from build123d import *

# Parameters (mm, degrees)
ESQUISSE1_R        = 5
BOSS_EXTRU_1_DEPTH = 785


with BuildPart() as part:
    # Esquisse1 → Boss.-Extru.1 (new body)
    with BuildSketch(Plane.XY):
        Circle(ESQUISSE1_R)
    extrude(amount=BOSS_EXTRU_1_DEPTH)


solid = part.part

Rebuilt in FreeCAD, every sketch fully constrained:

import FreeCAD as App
import Part
import Sketcher
Q = App.Units.Quantity

doc = App.newDocument("Part")
params = doc.addObject("Spreadsheet::Sheet", "Params")
for row, (alias, value) in enumerate([
    ("sketch1_diameter", "10 mm"),
    ("pad1_length", "785 mm"),
], start=1):
    params.set(f"A{row}", alias)
    params.set(f"B{row}", "=" + value)
    params.setAlias(f"B{row}", alias)

body = doc.addObject("PartDesign::Body", "Body")

# Sketch on XY plane
sketch1 = body.newObject("Sketcher::SketchObject", "Sketch")
sketch1.AttachmentSupport = (doc.getObject("XY_Plane"), [""])
sketch1.MapMode = "FlatFace"
sketch1.addGeometry(Part.Circle(App.Vector(0, 0, 0), App.Vector(0, 0, 1), 5), False)
sketch1.addConstraint([
    Sketcher.Constraint("Coincident", 0, 3, -1, 1),
    Sketcher.Constraint("Diameter", 0, Q("10 mm")),
])
sketch1.setExpression("Constraints[1]", "Params.sketch1_diameter")
pad1 = body.newObject("PartDesign::Pad", "Pad")
pad1.Profile = sketch1
pad1.setExpression("Length", "Params.pad1_length")

doc.recompute()
